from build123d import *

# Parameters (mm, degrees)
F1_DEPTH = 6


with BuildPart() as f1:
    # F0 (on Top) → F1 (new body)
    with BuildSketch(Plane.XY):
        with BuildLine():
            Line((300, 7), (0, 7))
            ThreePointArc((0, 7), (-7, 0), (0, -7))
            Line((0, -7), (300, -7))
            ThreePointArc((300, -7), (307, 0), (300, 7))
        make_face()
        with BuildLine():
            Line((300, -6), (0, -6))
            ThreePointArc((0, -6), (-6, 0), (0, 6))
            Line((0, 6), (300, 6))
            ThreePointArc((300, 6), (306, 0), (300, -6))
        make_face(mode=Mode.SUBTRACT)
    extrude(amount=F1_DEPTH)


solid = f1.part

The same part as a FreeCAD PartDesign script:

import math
import FreeCAD as App
import Part
import Sketcher
from FreeCAD import Vector
Q = App.Units.Quantity

doc = App.newDocument("Part")
params = doc.addObject("Spreadsheet::Sheet", "Params")
for row, (alias, value) in enumerate([
    ("sketch1_radius", "7 mm"),
    ("sketch1_radius2", "6 mm"),
    ("sketch1_width", "300 mm"),
    ("pad1_length", "6 mm"),
], start=1):
    params.set(f"A{row}", alias)
    params.set(f"B{row}", "=" + value)
    params.setAlias(f"B{row}", alias)

body = doc.addObject("PartDesign::Body", "Body")

# Sketch on XY plane
sketch1 = body.newObject("Sketcher::SketchObject", "Sketch")
sketch1.AttachmentSupport = (doc.getObject("XY_Plane"), [""])
sketch1.MapMode = "FlatFace"
sketch1.addGeometry(Part.LineSegment(Vector(300, 7, 0), Vector(0, 7, 0)), False)
sketch1.addGeometry(Part.ArcOfCircle(Part.Circle(Vector(0, 0, 0), Vector(0, 0, 1), 7), math.radians(90), math.radians(270)), False)
sketch1.addGeometry(Part.LineSegment(Vector(0, -7, 0), Vector(300, -7, 0)), False)
sketch1.addGeometry(Part.ArcOfCircle(Part.Circle(Vector(300, 0, 0), Vector(0, 0, 1), 7), math.radians(-90), math.radians(90)), False)
sketch1.addGeometry(Part.ArcOfCircle(Part.Circle(Vector(300, 0, 0), Vector(0, 0, 1), 6), math.radians(-90), math.radians(90)), False)
sketch1.addGeometry(Part.LineSegment(Vector(300, -6, 0), Vector(0, -6, 0)), False)
sketch1.addGeometry(Part.ArcOfCircle(Part.Circle(Vector(0, 0, 0), Vector(0, 0, 1), 6), math.radians(90), math.radians(270)), False)
sketch1.addGeometry(Part.LineSegment(Vector(0, 6, 0), Vector(300, 6, 0)), False)
sketch1.addConstraint(Sketcher.Constraint("Tangent", 0, 2, 1, 1))
sketch1.addConstraint(Sketcher.Constraint("Tangent", 1, 2, 2, 1))
sketch1.addConstraint(Sketcher.Constraint("Tangent", 2, 2, 3, 1))
sketch1.addConstraint(Sketcher.Constraint("Tangent", 3, 2, 0, 1))
sketch1.addConstraint(Sketcher.Constraint("Tangent", 4, 1, 5, 1))
sketch1.addConstraint(Sketcher.Constraint("Tangent", 5, 2, 6, 2))
sketch1.addConstraint(Sketcher.Constraint("Tangent", 6, 1, 7, 1))
sketch1.addConstraint(Sketcher.Constraint("Tangent", 7, 2, 4, 2))
sketch1.addConstraint(Sketcher.Constraint("Horizontal", 0))
sketch1.addConstraint(Sketcher.Constraint("Horizontal", 2))
sketch1.addConstraint(Sketcher.Constraint("Horizontal", 5))
sketch1.addConstraint(Sketcher.Constraint("Horizontal", 7))
sketch1.addConstraint(Sketcher.Constraint("Coincident", 1, 3, -1, 1))
sketch1.addConstraint(Sketcher.Constraint("Coincident", 6, 3, -1, 1))
sketch1.addConstraint(Sketcher.Constraint("Vertical", 4, 3, 2, 2))
sketch1.addConstraint(Sketcher.Constraint("Radius", 1, Q("7 mm")))
sketch1.addConstraint(Sketcher.Constraint("Radius", 4, Q("6 mm")))
sketch1.addConstraint(Sketcher.Constraint("DistanceX", 0, 2, 0, 1, Q("300 mm")))
sketch1.setExpression("Constraints[15]", "Params.sketch1_radius")
sketch1.setExpression("Constraints[16]", "Params.sketch1_radius2")
sketch1.setExpression("Constraints[17]", "Params.sketch1_width")
pad1 = body.newObject("PartDesign::Pad", "Pad")
pad1.Profile = sketch1
pad1.setExpression("Length", "Params.pad1_length")

doc.recompute()
